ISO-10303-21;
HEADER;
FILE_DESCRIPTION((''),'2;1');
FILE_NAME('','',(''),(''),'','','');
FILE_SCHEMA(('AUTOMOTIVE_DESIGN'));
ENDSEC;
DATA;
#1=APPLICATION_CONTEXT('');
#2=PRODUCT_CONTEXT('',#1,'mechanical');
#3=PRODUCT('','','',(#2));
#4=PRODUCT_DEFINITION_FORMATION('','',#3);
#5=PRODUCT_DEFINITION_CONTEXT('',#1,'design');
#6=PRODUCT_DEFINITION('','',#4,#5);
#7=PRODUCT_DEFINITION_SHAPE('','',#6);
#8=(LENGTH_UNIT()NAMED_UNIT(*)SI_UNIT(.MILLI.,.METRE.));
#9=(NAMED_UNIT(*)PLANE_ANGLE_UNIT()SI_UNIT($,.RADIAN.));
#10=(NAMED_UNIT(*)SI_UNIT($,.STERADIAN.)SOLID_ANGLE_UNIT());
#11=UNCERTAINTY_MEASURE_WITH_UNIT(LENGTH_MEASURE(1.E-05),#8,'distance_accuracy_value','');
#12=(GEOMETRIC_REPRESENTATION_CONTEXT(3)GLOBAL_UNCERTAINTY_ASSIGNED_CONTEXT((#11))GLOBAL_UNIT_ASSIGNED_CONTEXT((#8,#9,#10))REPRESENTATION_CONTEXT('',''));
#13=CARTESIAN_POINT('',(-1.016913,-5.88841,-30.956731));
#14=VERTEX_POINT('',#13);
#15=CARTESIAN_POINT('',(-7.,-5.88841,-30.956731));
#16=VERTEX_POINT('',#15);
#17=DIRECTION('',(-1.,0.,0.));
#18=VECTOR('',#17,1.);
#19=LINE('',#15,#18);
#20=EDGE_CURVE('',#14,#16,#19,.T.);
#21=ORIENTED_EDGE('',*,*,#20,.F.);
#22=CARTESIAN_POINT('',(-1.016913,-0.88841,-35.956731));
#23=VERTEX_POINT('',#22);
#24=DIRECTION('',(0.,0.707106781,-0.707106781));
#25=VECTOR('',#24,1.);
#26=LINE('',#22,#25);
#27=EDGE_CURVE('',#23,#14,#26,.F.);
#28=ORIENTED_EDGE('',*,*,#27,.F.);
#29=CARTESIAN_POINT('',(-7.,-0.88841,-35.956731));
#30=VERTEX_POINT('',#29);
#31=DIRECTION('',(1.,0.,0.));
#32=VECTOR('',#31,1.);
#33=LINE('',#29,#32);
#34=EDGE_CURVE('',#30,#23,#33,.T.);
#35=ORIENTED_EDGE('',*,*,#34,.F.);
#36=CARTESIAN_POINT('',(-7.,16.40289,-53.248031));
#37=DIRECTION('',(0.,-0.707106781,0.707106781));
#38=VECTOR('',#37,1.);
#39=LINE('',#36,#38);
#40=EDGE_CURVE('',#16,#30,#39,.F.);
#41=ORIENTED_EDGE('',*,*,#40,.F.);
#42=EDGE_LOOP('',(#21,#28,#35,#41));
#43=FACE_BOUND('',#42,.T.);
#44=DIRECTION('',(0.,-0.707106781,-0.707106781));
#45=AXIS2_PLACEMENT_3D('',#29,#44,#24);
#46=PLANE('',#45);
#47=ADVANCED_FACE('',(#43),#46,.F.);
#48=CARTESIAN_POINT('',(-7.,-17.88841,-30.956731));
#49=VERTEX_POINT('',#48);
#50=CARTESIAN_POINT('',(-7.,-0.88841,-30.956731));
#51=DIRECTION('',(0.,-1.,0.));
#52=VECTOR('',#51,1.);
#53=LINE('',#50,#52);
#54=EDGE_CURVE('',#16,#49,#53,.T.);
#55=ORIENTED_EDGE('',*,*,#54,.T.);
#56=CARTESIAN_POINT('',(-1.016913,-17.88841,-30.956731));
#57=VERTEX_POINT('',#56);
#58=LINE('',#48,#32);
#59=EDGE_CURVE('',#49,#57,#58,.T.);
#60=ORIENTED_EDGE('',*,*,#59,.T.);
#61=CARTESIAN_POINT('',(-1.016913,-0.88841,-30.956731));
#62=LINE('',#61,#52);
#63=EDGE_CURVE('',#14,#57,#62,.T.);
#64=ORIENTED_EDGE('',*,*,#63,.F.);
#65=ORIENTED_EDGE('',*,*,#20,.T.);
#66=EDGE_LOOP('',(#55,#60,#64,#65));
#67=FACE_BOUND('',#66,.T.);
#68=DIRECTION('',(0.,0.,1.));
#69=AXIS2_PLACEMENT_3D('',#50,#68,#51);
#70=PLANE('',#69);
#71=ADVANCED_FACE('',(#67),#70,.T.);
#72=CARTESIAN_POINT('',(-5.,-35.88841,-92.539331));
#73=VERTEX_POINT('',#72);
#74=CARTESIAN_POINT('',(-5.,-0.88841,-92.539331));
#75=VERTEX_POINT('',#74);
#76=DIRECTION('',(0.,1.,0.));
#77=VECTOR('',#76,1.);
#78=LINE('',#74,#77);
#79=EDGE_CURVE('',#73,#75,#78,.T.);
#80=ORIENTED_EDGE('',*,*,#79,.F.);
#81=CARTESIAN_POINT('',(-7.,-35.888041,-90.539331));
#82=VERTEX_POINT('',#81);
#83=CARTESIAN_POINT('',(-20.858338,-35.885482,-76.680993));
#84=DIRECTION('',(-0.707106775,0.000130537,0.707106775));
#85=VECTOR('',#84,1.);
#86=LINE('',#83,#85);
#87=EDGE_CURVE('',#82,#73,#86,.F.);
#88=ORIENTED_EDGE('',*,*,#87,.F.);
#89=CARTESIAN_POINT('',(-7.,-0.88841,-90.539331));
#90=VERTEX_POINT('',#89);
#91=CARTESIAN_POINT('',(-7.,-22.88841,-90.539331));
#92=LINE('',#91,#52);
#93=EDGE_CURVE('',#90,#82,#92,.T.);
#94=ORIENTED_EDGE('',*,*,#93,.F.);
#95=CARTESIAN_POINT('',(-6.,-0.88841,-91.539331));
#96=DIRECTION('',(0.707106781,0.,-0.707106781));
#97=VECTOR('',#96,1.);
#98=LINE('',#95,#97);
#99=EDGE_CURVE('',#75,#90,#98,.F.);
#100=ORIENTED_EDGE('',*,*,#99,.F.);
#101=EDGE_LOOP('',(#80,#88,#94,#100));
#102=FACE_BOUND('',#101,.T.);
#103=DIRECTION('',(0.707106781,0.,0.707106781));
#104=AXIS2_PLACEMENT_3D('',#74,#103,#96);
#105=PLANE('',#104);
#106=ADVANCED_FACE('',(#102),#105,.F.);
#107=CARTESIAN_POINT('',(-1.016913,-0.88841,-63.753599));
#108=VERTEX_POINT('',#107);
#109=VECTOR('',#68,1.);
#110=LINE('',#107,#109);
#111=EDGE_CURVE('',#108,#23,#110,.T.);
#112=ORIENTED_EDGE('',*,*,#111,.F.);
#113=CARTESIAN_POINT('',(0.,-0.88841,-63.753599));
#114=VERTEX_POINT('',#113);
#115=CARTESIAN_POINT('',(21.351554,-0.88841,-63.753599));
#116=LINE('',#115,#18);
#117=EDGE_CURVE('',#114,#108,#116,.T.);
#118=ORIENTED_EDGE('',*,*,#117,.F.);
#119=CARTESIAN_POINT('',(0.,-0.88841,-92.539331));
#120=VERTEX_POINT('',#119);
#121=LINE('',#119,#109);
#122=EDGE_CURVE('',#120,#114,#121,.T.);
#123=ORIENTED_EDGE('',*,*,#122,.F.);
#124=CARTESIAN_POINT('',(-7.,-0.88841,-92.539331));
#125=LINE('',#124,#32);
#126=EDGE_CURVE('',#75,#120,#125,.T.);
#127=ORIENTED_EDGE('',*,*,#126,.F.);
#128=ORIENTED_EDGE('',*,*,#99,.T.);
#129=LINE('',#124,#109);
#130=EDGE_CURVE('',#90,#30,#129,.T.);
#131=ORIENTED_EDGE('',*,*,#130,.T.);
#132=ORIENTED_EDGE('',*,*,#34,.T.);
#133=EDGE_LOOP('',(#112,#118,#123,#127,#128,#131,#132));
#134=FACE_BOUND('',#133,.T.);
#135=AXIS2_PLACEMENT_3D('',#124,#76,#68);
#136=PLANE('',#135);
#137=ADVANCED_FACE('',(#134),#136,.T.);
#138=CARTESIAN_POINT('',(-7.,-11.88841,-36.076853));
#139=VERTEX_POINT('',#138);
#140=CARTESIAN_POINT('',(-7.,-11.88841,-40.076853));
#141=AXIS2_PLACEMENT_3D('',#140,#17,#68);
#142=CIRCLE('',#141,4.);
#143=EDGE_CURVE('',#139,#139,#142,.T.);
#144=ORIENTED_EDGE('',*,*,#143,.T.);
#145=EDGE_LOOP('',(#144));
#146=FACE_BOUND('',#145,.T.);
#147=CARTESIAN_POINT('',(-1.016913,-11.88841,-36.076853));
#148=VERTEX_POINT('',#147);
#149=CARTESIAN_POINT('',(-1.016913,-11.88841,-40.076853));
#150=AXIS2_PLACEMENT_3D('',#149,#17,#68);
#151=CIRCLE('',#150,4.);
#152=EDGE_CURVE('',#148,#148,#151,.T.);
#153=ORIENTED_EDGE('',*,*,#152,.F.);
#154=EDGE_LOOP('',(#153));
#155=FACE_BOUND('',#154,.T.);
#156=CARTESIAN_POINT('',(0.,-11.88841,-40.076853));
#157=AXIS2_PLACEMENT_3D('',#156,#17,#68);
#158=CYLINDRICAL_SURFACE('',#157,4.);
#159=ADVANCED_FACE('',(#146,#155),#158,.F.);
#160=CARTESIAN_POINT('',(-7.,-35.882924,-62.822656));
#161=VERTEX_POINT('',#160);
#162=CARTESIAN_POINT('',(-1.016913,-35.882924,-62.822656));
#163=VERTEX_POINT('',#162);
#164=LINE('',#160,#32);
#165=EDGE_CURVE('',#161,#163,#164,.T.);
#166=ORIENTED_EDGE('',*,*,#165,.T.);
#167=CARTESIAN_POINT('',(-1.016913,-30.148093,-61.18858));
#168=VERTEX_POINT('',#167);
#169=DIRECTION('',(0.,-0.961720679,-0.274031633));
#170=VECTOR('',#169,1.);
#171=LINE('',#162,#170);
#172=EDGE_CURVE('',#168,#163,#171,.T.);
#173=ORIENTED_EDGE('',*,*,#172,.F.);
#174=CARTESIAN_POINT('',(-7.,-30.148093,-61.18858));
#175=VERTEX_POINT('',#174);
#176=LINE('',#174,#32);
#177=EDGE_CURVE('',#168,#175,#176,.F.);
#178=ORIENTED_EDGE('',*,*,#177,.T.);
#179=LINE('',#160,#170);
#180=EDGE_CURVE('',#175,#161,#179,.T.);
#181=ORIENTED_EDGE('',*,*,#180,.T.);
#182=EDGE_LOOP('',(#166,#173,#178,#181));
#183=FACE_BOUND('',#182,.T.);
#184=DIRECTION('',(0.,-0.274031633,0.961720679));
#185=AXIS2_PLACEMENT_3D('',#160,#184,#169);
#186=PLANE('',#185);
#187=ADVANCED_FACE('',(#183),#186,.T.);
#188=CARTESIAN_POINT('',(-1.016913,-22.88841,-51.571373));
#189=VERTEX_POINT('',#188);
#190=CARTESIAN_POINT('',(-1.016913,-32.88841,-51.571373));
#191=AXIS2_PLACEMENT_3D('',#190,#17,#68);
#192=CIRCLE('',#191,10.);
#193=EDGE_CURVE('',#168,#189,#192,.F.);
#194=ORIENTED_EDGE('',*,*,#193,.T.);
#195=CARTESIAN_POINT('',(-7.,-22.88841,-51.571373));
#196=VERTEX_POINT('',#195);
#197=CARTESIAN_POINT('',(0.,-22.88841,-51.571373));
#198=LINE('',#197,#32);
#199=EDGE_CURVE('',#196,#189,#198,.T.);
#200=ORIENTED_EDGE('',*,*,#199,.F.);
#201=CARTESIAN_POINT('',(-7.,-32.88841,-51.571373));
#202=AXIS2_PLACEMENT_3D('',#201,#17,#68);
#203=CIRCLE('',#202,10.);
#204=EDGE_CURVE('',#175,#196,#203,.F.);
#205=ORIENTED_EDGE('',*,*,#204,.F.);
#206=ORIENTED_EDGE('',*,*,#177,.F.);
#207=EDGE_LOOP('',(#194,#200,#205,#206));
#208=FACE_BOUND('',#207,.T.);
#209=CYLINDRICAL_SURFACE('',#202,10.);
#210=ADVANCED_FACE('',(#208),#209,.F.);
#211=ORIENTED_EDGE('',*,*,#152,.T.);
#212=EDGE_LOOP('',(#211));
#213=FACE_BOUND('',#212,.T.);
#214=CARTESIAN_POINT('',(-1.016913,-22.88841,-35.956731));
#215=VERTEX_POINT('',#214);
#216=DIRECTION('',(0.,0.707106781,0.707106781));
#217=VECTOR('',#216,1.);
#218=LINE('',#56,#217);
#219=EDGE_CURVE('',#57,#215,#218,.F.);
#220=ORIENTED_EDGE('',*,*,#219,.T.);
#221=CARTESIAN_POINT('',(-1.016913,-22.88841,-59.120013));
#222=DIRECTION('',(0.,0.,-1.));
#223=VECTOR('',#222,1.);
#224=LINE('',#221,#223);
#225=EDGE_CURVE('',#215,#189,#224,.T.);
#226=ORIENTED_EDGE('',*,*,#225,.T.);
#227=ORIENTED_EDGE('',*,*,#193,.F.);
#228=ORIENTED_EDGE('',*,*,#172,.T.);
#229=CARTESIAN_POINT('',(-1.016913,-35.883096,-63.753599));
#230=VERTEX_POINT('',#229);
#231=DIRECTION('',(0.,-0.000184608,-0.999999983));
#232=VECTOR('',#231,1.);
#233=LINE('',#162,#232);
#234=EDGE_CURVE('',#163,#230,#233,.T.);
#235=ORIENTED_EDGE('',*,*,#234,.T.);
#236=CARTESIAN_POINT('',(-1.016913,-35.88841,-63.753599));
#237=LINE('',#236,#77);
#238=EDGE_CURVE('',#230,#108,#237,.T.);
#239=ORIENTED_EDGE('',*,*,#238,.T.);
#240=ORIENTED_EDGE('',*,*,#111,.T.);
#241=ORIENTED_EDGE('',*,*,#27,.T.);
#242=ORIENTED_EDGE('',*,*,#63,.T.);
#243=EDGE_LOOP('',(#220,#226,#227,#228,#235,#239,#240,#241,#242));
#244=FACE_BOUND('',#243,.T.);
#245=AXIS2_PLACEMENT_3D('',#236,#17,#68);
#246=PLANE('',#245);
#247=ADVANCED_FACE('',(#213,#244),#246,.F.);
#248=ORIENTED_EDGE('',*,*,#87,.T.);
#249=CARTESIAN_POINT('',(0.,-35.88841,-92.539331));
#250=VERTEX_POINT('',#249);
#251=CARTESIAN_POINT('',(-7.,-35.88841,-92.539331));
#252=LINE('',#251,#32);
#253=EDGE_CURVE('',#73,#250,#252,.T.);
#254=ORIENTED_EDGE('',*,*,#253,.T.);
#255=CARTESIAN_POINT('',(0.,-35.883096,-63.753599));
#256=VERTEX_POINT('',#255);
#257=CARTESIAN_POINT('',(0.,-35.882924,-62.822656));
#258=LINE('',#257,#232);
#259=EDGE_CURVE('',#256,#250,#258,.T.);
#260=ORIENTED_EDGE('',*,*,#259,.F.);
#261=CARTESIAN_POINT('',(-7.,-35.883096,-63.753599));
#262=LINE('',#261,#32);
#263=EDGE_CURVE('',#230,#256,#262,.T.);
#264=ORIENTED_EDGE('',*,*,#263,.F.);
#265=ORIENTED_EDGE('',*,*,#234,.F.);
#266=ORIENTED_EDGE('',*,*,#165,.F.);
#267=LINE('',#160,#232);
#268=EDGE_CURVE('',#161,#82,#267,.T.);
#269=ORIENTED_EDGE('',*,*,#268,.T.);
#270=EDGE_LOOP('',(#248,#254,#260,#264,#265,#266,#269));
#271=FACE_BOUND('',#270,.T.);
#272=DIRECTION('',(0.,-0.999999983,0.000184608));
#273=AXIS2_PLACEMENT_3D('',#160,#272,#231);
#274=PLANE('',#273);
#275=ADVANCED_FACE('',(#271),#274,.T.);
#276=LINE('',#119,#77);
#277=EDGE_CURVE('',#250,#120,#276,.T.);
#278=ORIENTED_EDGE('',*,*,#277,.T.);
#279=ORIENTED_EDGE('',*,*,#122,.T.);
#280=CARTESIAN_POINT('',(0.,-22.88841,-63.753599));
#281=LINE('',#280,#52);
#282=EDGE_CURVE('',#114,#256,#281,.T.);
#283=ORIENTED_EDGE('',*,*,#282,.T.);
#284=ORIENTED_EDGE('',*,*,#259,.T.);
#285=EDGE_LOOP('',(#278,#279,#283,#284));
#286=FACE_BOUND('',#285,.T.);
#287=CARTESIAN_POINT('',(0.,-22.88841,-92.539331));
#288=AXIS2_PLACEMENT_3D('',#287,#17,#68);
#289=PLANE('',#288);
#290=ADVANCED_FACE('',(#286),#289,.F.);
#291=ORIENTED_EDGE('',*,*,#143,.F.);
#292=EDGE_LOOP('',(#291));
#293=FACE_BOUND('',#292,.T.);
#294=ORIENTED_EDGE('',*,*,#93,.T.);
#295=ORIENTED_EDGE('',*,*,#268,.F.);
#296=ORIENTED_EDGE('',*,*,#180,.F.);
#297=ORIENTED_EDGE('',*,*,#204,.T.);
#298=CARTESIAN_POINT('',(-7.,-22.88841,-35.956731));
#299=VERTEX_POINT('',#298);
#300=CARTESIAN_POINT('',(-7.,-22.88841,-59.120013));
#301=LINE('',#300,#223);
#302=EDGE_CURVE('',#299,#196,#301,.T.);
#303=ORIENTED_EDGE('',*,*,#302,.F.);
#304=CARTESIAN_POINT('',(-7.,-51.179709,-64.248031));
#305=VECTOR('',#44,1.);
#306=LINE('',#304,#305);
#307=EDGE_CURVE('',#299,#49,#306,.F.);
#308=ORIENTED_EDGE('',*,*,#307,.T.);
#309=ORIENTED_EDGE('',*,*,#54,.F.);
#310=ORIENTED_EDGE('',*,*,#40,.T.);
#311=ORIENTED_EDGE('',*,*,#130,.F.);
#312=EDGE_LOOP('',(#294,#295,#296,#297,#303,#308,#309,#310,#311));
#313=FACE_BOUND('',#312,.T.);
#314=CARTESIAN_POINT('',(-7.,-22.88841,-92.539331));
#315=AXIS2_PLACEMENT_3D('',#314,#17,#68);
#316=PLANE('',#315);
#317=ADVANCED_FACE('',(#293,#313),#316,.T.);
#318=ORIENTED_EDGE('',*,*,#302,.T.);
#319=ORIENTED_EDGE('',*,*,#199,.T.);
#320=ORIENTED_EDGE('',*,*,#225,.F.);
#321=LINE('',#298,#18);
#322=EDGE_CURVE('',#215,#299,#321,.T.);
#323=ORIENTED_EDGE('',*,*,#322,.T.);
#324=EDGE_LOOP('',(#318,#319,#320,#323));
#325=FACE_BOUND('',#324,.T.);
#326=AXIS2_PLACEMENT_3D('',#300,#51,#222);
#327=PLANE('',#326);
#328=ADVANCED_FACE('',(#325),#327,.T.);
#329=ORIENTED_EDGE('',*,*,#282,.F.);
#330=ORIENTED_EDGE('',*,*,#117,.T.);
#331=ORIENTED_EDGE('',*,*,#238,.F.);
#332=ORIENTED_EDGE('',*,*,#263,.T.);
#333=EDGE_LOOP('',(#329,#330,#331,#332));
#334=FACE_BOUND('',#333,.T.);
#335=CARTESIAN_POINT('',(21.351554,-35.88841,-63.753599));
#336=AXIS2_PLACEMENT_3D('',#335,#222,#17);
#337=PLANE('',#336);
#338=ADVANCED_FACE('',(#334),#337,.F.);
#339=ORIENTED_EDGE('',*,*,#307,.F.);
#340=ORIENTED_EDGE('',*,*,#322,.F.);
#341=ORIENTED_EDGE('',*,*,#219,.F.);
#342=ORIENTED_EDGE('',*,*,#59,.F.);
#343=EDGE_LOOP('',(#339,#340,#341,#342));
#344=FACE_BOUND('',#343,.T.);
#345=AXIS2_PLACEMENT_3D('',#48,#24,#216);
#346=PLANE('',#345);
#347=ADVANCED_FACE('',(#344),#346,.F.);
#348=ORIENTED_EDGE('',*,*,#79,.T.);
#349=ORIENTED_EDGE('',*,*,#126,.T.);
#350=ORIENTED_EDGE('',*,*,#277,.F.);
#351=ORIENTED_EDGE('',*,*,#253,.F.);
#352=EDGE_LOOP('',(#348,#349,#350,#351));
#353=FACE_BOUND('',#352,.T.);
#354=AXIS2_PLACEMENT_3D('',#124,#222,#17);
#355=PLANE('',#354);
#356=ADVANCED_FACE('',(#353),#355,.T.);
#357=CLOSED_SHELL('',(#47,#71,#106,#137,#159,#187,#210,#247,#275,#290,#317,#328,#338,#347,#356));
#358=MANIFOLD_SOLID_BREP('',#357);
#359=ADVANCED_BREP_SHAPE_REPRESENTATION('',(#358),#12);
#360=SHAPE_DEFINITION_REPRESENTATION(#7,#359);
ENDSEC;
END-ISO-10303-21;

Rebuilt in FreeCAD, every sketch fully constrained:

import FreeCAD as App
import Part
import Sketcher
Q = App.Units.Quantity


def edges_at(feature, points):
    """Names of the edges that pass closest to the given points."""
    edges = feature.Shape.Edges
    near = lambda p: min(range(len(edges)), key=lambda i: edges[i].distToShape(Part.Vertex(*p))[0])
    return sorted({f"Edge{near(p) + 1}" for p in points})


def add_polygon(sketch, points):
    """Adds a closed chain of lines whose ends are joined by coincident constraints."""
    first, n = sketch.GeometryCount, len(points)
    for a, b in zip(points, points[1:] + points[:1]):
        sketch.addGeometry(Part.LineSegment(App.Vector(*a, 0), App.Vector(*b, 0)), False)
    for i in range(n):
        sketch.addConstraint(Sketcher.Constraint("Coincident", first + i, 2, first + (i + 1) % n, 1))

doc = App.newDocument("Part")
body = doc.addObject("PartDesign::Body", "Body")

sketch1 = doc.addObject("Sketcher::SketchObject", "Sketch")
body.addObject(sketch1)
sketch1.AttachmentSupport = (doc.YZ_Plane, [""])
sketch1.MapMode = "FlatFace"
add_polygon(sketch1, [(-23, -59), (-36, -63), (-36, -93), (-1, -93), (-1, -31), (-23, -31)])
sketch1.addConstraint([
    Sketcher.Constraint("Horizontal", 2),
    Sketcher.Constraint("Vertical", 3),
    Sketcher.Constraint("Horizontal", 4),
    Sketcher.Constraint("Vertical", 5),
    Sketcher.Constraint("DistanceX", 2, 1, 2, 2, Q("35 mm")),
    Sketcher.Constraint("DistanceX", 4, 2, 4, 1, Q("22 mm")),
    Sketcher.Constraint("DistanceY", 3, 1, 3, 2, Q("61.5826 mm")),
    Sketcher.Constraint("DistanceY", 5, 2, 5, 1, Q("28.163282 mm")),
    Sketcher.Constraint("DistanceX", 1, 2, -1, 1, Q("35.88841 mm")),
    Sketcher.Constraint("DistanceY", 1, 2, -1, 1, Q("92.539331 mm")),
    Sketcher.Constraint("Distance", 0, Q("13.511734 mm")),
    Sketcher.Constraint("Distance", 1, Q("29.716675 mm")),
])
pad1 = doc.addObject("PartDesign::Pad", "Pad")
body.addObject(pad1)
pad1.Profile = sketch1
pad1.Length = 7
pad1.Reversed = True
doc.recompute()

fillet = doc.addObject("PartDesign::Fillet", "Fillet")
body.addObject(fillet)
fillet.Base = (pad1, edges_at(pad1, [(-3.5, -22.888, -59.12)]))
fillet.Radius = 10
doc.recompute()

chamfer = doc.addObject("PartDesign::Chamfer", "Chamfer")
body.addObject(chamfer)
chamfer.Base = (fillet, edges_at(fillet, [(-3.5, -22.888, -30.957), (-3.5, -0.888, -30.957)]))
chamfer.Size = 5
doc.recompute()

chamfer2 = doc.addObject("PartDesign::Chamfer", "Chamfer001")
body.addObject(chamfer2)
chamfer2.Base = (chamfer, edges_at(chamfer, [(-7, -18.388, -92.539)]))
chamfer2.Size = 2

sketch2 = doc.addObject("Sketcher::SketchObject", "Sketch001")
body.addObject(sketch2)
sketch2.AttachmentSupport = (doc.XZ_Plane, [""])
sketch2.MapMode = "FlatFace"
sketch2.AttachmentOffset = App.Placement(App.Vector(0, 0, 0.88841), App.Rotation())
add_polygon(sketch2, [(21, -11), (21, -64), (-1, -64), (-1, -11)])
sketch2.addConstraint([
    Sketcher.Constraint("Vertical", 0),
    Sketcher.Constraint("Horizontal", 1),
    Sketcher.Constraint("Vertical", 2),
    Sketcher.Constraint("Horizontal", 3),
    Sketcher.Constraint("DistanceY", 0, 2, -1, 1, Q("63.753599 mm")),
    Sketcher.Constraint("DistanceX", 1, 2, 1, 1, Q("22.368467 mm")),
    Sketcher.Constraint("DistanceY", 0, 2, 0, 1, Q("53.156625 mm")),
    Sketcher.Constraint("DistanceX", -1, 1, 0, 2, Q("21.351554 mm")),
])
pocket1 = doc.addObject("PartDesign::Pocket", "Pocket")
body.addObject(pocket1)
pocket1.Profile = sketch2
pocket1.Type = "ThroughAll"
pocket1.Reversed = True

sketch3 = doc.addObject("Sketcher::SketchObject", "Sketch002")
body.addObject(sketch3)
sketch3.AttachmentSupport = (doc.YZ_Plane, [""])
sketch3.MapMode = "FlatFace"
sketch3.AttachmentOffset = App.Placement(App.Vector(0, 0, -7), App.Rotation())
sketch3.addGeometry(Part.Circle(App.Vector(-11.9, -40.1, 0), App.Vector(0, 0, 1), 4), False)
sketch3.addConstraint([
    Sketcher.Constraint("Diameter", 0, Q("8 mm")),
    Sketcher.Constraint("DistanceX", 0, 3, -1, 1, Q("11.88841 mm")),
    Sketcher.Constraint("DistanceY", 0, 3, -1, 1, Q("40.076853 mm")),
])
pocket2 = doc.addObject("PartDesign::Pocket", "Pocket001")
body.addObject(pocket2)
pocket2.Profile = sketch3
pocket2.Type = "ThroughAll"
pocket2.Reversed = True

doc.recompute()
